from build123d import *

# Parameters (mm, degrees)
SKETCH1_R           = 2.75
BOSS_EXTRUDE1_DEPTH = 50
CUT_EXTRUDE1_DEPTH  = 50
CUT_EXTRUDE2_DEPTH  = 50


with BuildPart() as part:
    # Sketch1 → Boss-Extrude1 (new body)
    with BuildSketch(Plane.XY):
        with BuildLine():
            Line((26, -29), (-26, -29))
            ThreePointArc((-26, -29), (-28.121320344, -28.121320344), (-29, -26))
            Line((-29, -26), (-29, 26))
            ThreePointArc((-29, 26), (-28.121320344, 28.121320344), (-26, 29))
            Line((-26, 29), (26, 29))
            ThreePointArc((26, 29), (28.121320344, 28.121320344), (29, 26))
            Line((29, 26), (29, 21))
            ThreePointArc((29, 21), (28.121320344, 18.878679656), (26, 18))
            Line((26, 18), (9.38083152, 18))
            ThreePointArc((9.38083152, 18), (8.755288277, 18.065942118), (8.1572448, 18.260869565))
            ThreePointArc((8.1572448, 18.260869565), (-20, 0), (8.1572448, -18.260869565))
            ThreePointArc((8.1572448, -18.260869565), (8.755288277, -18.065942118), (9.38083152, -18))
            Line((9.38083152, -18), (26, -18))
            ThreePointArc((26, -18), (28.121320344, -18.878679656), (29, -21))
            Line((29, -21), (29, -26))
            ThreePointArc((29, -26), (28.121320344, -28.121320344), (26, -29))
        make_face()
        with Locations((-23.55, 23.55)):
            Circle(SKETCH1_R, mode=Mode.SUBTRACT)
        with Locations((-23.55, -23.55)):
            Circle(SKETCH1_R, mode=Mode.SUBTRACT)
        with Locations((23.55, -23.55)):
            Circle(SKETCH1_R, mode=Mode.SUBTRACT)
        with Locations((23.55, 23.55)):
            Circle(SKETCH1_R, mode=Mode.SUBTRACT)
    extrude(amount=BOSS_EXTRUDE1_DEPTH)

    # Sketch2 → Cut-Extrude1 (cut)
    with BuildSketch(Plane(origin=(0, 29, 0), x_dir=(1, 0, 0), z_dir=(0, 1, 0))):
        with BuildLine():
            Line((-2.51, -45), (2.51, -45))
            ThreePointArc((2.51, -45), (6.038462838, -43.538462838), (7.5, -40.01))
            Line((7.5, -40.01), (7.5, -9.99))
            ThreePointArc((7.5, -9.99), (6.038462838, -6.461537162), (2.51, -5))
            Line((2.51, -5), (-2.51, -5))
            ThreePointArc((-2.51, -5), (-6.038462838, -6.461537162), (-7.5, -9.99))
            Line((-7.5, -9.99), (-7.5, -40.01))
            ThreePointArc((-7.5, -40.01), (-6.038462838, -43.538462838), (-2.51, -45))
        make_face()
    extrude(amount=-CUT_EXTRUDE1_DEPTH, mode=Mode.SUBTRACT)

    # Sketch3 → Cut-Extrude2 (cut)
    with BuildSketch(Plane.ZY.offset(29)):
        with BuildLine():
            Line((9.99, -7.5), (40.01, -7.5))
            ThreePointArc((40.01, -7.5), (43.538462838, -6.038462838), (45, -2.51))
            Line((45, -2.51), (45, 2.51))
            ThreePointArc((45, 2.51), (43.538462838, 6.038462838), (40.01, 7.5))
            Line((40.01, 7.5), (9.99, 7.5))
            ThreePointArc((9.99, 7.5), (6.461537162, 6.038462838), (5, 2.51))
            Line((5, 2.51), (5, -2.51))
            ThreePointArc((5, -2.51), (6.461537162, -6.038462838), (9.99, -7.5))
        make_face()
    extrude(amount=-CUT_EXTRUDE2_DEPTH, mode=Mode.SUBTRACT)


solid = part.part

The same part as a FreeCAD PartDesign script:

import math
import FreeCAD as App
import Part
import Sketcher

doc = App.newDocument("Part")
body = doc.addObject("PartDesign::Body", "Body")

sketch1 = doc.addObject("Sketcher::SketchObject", "Sketch")
body.addObject(sketch1)
sketch1.AttachmentSupport = (doc.XY_Plane, [""])
sketch1.MapMode = "FlatFace"
sketch1.addGeometry([
    Part.LineSegment(App.Vector(-26, -29, 0), App.Vector(26, -29, 0)),
    Part.ArcOfCircle(Part.Circle(App.Vector(26, -26, 0), App.Vector(0, 0, 1), 3), math.radians(-90), math.radians(0)),
    Part.LineSegment(App.Vector(29, -26, 0), App.Vector(29, -21, 0)),
    Part.ArcOfCircle(Part.Circle(App.Vector(26, -21, 0), App.Vector(0, 0, 1), 3), math.radians(0), math.radians(90)),
    Part.LineSegment(App.Vector(26, -18, 0), App.Vector(9.4, -18, 0)),
    Part.ArcOfCircle(Part.Circle(App.Vector(9.4, -21, 0), App.Vector(0, 0, 1), 3), math.radians(90), math.radians(114)),
    Part.ArcOfCircle(Part.Circle(App.Vector(0, 0, 0), App.Vector(0, 0, 1), 20), math.radians(66), math.radians(294)),
    Part.ArcOfCircle(Part.Circle(App.Vector(9.4, 21, 0), App.Vector(0, 0, 1), 3), math.radians(-114), math.radians(-90)),
    Part.LineSegment(App.Vector(9.4, 18, 0), App.Vector(26, 18, 0)),
    Part.ArcOfCircle(Part.Circle(App.Vector(26, 21, 0), App.Vector(0, 0, 1), 3), math.radians(-90), math.radians(0)),
    Part.LineSegment(App.Vector(29, 21, 0), App.Vector(29, 26, 0)),
    Part.ArcOfCircle(Part.Circle(App.Vector(26, 26, 0), App.Vector(0, 0, 1), 3), math.radians(0), math.radians(90)),
    Part.LineSegment(App.Vector(26, 29, 0), App.Vector(-26, 29, 0)),
    Part.ArcOfCircle(Part.Circle(App.Vector(-26, 26, 0), App.Vector(0, 0, 1), 3), math.radians(90), math.radians(180)),
    Part.LineSegment(App.Vector(-29, 26, 0), App.Vector(-29, -26, 0)),
    Part.ArcOfCircle(Part.Circle(App.Vector(-26, -26, 0), App.Vector(0, 0, 1), 3), math.radians(180), math.radians(270)),
    Part.Circle(App.Vector(23.6, -23.6, 0), App.Vector(0, 0, 1), 2.8),
    Part.Circle(App.Vector(-23.6, -23.6, 0), App.Vector(0, 0, 1), 2.8),
    Part.Circle(App.Vector(23.6, 23.6, 0), App.Vector(0, 0, 1), 2.8),
    Part.Circle(App.Vector(-23.6, 23.6, 0), App.Vector(0, 0, 1), 2.8),
], False)
sketch1.addConstraint([
    Sketcher.Constraint("Tangent", 0, 2, 1, 1),
    Sketcher.Constraint("Tangent", 1, 2, 2, 1),
    Sketcher.Constraint("Tangent", 2, 2, 3, 1),
    Sketcher.Constraint("Tangent", 3, 2, 4, 1),
    Sketcher.Constraint("Tangent", 4, 2, 5, 1),
    Sketcher.Constraint("Tangent", 5, 2, 6, 2),
    Sketcher.Constraint("Tangent", 6, 1, 7, 1),
    Sketcher.Constraint("Tangent", 7, 2, 8, 1),
    Sketcher.Constraint("Tangent", 8, 2, 9, 1),
    Sketcher.Constraint("Tangent", 9, 2, 10, 1),
    Sketcher.Constraint("Tangent", 10, 2, 11, 1),
    Sketcher.Constraint("Tangent", 11, 2, 12, 1),
    Sketcher.Constraint("Tangent", 12, 2, 13, 1),
    Sketcher.Constraint("Tangent", 13, 2, 14, 1),
    Sketcher.Constraint("Tangent", 14, 2, 15, 1),
    Sketcher.Constraint("Tangent", 15, 2, 0, 1),
    Sketcher.Constraint("Horizontal", 0),
    Sketcher.Constraint("Vertical", 2),
    Sketcher.Constraint("Horizontal", 4),
    Sketcher.Constraint("Horizontal", 8),
    Sketcher.Constraint("Vertical", 10),
    Sketcher.Constraint("Horizontal", 12),
    Sketcher.Constraint("Vertical", 14),
    Sketcher.Constraint("Coincident", 6, 3, -1, 1),
    Sketcher.Constraint("Equal", 1, 3),
    Sketcher.Constraint("Equal", 3, 5),
    Sketcher.Constraint("Equal", 5, 7),
    Sketcher.Constraint("Equal", 7, 9),
    Sketcher.Constraint("Equal", 9, 11),
    Sketcher.Constraint("Equal", 11, 13),
    Sketcher.Constraint("Equal", 13, 15),
    Sketcher.Constraint("Equal", 16, 17),
    Sketcher.Constraint("Equal", 17, 18),
    Sketcher.Constraint("Equal", 18, 19),
    Sketcher.Constraint("Symmetric", 1, 3, 13, 3, -1, 1),
    Sketcher.Constraint("Symmetric", 17, 3, 18, 3, -1, 1),
    Sketcher.Constraint("Symmetric", 16, 3, 19, 3, -1, 1),
    Sketcher.Constraint("Symmetric", 16, 3, 17, 3, -2),
    Sketcher.Constraint("Symmetric", 3, 3, 9, 3, -1),
    Sketcher.Constraint("Equal", 12, 14),
    Sketcher.Constraint("Radius", 1, 3.0),
    Sketcher.Constraint("Radius", 6, 20.0),
    Sketcher.Constraint("Diameter", 16, 5.5),
    Sketcher.Constraint("DistanceX", 0, 1, 0, 2, 52.0),
    Sketcher.Constraint("DistanceY", 2, 1, 2, 2, 5.0),
    Sketcher.Constraint("DistanceX", 17, 3, 16, 3, 47.1),
    Sketcher.Constraint("DistanceY", 17, 3, 19, 3, 47.1),
])
pad1 = doc.addObject("PartDesign::Pad", "Pad")
body.addObject(pad1)
pad1.Profile = sketch1
pad1.Length = 50

sketch2 = doc.addObject("Sketcher::SketchObject", "Sketch001")
body.addObject(sketch2)
sketch2.AttachmentSupport = (doc.XZ_Plane, [""])
sketch2.MapMode = "FlatFace"
sketch2.AttachmentOffset = App.Placement(App.Vector(0, 0, -29), App.Rotation())
sketch2.addGeometry([
    Part.LineSegment(App.Vector(-2.5, 45, 0), App.Vector(2.5, 45, 0)),
    Part.ArcOfCircle(Part.Circle(App.Vector(2.5, 40, 0), App.Vector(0, 0, 1), 5), math.radians(0), math.radians(90)),
    Part.LineSegment(App.Vector(7.5, 40, 0), App.Vector(7.5, 10, 0)),
    Part.ArcOfCircle(Part.Circle(App.Vector(2.5, 10, 0), App.Vector(0, 0, 1), 5), math.radians(-90), math.radians(0)),
    Part.LineSegment(App.Vector(2.5, 5, 0), App.Vector(-2.5, 5, 0)),
    Part.ArcOfCircle(Part.Circle(App.Vector(-2.5, 10, 0), App.Vector(0, 0, 1), 5), math.radians(180), math.radians(270)),
    Part.LineSegment(App.Vector(-7.5, 10, 0), App.Vector(-7.5, 40, 0)),
    Part.ArcOfCircle(Part.Circle(App.Vector(-2.5, 40, 0), App.Vector(0, 0, 1), 5), math.radians(90), math.radians(180)),
], False)
sketch2.addConstraint([
    Sketcher.Constraint("Tangent", 0, 2, 1, 2),
    Sketcher.Constraint("Tangent", 1, 1, 2, 1),
    Sketcher.Constraint("Tangent", 2, 2, 3, 2),
    Sketcher.Constraint("Tangent", 3, 1, 4, 1),
    Sketcher.Constraint("Tangent", 4, 2, 5, 2),
    Sketcher.Constraint("Tangent", 5, 1, 6, 1),
    Sketcher.Constraint("Tangent", 6, 2, 7, 2),
    Sketcher.Constraint("Tangent", 7, 1, 0, 1),
    Sketcher.Constraint("Horizontal", 0),
    Sketcher.Constraint("Vertical", 2),
    Sketcher.Constraint("Horizontal", 4),
    Sketcher.Constraint("Vertical", 6),
    Sketcher.Constraint("Equal", 1, 3),
    Sketcher.Constraint("Equal", 3, 5),
    Sketcher.Constraint("Equal", 5, 7),
    Sketcher.Constraint("Radius", 1, 4.99),
    Sketcher.Constraint("DistanceY", -1, 1, 0, 2, 45.0),
    Sketcher.Constraint("DistanceY", -1, 1, 3, 1, 5.0),
    Sketcher.Constraint("DistanceX", 5, 1, 2, 2, 15.0),
    Sketcher.Constraint("DistanceX", -1, 1, 1, 1, 7.5),
])
pocket1 = doc.addObject("PartDesign::Pocket", "Pocket")
body.addObject(pocket1)
pocket1.Profile = sketch2
pocket1.Length = 50
pocket1.Reversed = True

sketch3 = doc.addObject("Sketcher::SketchObject", "Sketch002")
body.addObject(sketch3)
sketch3.AttachmentSupport = (doc.YZ_Plane, [""])
sketch3.MapMode = "FlatFace"
sketch3.AttachmentOffset = App.Placement(App.Vector(0, 0, -29), App.Rotation())
sketch3.addGeometry([
    Part.LineSegment(App.Vector(-7.5, 10, 0), App.Vector(-7.5, 40, 0)),
    Part.ArcOfCircle(Part.Circle(App.Vector(-2.5, 40, 0), App.Vector(0, 0, 1), 5), math.radians(90), math.radians(180)),
    Part.LineSegment(App.Vector(-2.5, 45, 0), App.Vector(2.5, 45, 0)),
    Part.ArcOfCircle(Part.Circle(App.Vector(2.5, 40, 0), App.Vector(0, 0, 1), 5), math.radians(0), math.radians(90)),
    Part.LineSegment(App.Vector(7.5, 40, 0), App.Vector(7.5, 10, 0)),
    Part.ArcOfCircle(Part.Circle(App.Vector(2.5, 10, 0), App.Vector(0, 0, 1), 5), math.radians(-90), math.radians(0)),
    Part.LineSegment(App.Vector(2.5, 5, 0), App.Vector(-2.5, 5, 0)),
    Part.ArcOfCircle(Part.Circle(App.Vector(-2.5, 10, 0), App.Vector(0, 0, 1), 5), math.radians(180), math.radians(270)),
], False)
sketch3.addConstraint([
    Sketcher.Constraint("Tangent", 0, 2, 1, 2),
    Sketcher.Constraint("Tangent", 1, 1, 2, 1),
    Sketcher.Constraint("Tangent", 2, 2, 3, 2),
    Sketcher.Constraint("Tangent", 3, 1, 4, 1),
    Sketcher.Constraint("Tangent", 4, 2, 5, 2),
    Sketcher.Constraint("Tangent", 5, 1, 6, 1),
    Sketcher.Constraint("Tangent", 6, 2, 7, 2),
    Sketcher.Constraint("Tangent", 7, 1, 0, 1),
    Sketcher.Constraint("Vertical", 0),
    Sketcher.Constraint("Horizontal", 2),
    Sketcher.Constraint("Vertical", 4),
    Sketcher.Constraint("Horizontal", 6),
    Sketcher.Constraint("Equal", 1, 3),
    Sketcher.Constraint("Equal", 3, 5),
    Sketcher.Constraint("Equal", 5, 7),
    Sketcher.Constraint("Radius", 1, 4.99),
    Sketcher.Constraint("DistanceY", -1, 1, 1, 1, 45.0),
    Sketcher.Constraint("DistanceY", -1, 1, 5, 1, 5.0),
    Sketcher.Constraint("DistanceX", 0, 2, 3, 1, 15.0),
    Sketcher.Constraint("DistanceX", 0, 2, -1, 1, 7.5),
])
pocket2 = doc.addObject("PartDesign::Pocket", "Pocket001")
body.addObject(pocket2)
pocket2.Profile = sketch3
pocket2.Length = 50
pocket2.Reversed = True

doc.recompute()
